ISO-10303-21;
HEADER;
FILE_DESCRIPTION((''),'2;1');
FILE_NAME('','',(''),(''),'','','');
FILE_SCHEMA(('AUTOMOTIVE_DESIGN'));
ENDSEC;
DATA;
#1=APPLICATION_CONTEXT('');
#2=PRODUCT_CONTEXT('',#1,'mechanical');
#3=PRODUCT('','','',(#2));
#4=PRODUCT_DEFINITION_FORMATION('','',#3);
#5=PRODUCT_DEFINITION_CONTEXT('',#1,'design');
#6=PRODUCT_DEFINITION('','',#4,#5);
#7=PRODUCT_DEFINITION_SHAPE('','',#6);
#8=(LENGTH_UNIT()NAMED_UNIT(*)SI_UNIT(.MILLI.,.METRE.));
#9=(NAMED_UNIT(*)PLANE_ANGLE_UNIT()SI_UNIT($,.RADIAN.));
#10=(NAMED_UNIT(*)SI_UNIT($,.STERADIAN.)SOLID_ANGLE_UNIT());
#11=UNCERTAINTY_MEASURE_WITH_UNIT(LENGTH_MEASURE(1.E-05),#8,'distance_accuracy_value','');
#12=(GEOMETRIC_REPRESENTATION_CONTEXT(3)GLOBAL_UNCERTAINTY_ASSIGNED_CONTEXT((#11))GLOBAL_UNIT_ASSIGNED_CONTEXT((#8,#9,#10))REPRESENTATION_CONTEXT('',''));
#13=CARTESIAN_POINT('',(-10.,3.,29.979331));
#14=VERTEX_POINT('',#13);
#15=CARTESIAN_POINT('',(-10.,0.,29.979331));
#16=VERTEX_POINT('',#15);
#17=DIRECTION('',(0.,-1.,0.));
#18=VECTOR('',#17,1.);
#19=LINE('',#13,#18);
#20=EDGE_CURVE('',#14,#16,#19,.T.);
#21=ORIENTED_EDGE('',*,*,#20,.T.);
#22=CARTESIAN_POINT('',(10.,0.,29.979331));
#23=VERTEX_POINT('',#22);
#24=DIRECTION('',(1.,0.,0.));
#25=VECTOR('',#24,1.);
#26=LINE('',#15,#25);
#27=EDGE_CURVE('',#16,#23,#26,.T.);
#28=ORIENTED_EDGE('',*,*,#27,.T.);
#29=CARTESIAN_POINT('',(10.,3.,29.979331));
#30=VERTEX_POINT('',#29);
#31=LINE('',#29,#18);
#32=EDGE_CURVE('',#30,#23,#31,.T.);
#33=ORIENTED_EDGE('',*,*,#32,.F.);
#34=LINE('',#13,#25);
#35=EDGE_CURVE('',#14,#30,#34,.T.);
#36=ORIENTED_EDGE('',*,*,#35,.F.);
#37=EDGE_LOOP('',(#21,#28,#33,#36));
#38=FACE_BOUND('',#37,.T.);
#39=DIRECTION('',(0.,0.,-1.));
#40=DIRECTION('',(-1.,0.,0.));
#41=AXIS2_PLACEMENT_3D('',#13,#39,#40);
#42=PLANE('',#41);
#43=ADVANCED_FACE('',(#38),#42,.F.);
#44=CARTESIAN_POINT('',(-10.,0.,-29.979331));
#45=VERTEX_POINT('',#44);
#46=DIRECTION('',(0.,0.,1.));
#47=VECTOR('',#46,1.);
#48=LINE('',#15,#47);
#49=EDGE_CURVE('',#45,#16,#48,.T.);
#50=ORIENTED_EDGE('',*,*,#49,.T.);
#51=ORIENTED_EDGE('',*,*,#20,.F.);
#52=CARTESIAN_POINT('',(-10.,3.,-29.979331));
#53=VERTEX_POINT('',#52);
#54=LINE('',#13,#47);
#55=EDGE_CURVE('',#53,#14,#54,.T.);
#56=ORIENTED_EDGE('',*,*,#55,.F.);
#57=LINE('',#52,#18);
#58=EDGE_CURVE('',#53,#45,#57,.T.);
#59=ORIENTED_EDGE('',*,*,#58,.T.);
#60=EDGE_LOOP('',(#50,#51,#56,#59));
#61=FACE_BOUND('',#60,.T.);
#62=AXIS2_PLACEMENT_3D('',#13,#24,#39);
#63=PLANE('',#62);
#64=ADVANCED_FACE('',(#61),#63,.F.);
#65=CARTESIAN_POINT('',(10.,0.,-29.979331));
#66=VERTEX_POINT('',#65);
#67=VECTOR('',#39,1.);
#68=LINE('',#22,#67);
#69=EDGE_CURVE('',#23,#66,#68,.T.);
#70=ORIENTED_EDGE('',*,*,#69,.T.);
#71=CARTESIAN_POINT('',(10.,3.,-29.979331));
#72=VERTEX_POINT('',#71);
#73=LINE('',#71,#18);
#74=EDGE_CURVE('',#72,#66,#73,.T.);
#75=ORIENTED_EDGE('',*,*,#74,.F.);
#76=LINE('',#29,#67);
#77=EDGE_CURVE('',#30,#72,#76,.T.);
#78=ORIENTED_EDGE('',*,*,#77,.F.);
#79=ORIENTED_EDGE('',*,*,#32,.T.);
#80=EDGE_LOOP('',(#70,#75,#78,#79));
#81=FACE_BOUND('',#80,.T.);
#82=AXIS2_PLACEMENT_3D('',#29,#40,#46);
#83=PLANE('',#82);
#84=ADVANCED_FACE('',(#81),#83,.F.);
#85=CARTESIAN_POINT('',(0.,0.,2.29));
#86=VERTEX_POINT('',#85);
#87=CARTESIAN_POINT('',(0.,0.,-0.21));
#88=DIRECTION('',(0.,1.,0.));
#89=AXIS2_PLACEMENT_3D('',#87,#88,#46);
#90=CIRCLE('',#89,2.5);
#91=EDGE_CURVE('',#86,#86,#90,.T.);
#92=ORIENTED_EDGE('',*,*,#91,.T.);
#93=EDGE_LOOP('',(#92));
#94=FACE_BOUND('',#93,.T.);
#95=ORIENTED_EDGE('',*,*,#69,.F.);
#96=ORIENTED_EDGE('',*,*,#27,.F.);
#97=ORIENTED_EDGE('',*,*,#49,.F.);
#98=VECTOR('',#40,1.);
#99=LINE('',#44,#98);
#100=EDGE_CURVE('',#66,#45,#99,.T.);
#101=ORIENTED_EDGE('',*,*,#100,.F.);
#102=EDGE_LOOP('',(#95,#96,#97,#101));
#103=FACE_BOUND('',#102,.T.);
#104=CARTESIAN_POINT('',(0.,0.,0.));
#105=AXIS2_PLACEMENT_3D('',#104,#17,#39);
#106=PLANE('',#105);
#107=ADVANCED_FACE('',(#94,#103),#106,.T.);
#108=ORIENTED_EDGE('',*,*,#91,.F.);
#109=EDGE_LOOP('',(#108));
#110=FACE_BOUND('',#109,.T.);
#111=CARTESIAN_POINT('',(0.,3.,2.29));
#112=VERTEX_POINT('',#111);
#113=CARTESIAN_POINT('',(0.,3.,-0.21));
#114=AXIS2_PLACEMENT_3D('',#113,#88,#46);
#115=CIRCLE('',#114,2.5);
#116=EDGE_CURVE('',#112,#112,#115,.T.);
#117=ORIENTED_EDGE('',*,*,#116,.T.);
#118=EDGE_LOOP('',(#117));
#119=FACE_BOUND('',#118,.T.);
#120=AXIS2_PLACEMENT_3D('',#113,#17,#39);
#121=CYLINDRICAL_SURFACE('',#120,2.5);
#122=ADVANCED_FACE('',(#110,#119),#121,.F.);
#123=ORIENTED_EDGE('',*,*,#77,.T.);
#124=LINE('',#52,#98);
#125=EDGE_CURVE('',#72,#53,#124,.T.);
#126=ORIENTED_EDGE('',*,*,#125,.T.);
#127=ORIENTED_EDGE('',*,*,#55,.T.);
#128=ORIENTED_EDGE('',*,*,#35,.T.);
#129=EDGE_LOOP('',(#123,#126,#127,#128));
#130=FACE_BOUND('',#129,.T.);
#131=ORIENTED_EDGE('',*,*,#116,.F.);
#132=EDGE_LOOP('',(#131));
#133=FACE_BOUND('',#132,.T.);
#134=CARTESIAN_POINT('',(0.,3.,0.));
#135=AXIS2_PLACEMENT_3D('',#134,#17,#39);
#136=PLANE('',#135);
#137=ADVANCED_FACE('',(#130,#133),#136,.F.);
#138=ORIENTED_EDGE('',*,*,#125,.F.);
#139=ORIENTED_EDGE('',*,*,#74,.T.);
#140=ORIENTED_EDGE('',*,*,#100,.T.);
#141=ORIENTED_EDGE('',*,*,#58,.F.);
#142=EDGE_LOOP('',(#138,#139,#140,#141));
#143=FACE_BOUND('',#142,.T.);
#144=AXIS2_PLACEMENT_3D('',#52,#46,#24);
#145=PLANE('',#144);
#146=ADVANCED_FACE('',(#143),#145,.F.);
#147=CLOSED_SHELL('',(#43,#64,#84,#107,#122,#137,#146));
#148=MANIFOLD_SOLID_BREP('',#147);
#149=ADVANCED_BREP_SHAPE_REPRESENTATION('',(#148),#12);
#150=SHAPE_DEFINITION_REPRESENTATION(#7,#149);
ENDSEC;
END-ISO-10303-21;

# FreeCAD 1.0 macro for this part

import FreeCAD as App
import Part
import Sketcher

doc = App.newDocument("Part")
body = doc.addObject("PartDesign::Body", "Body")

sketch1 = body.newObject("Sketcher::SketchObject", "Sketch")
sketch1.AttachmentSupport = (doc.getObject("XZ_Plane"), [""])
sketch1.MapMode = "FlatFace"
sketch1.addGeometry(Part.LineSegment(App.Vector(-10, -30, 0), App.Vector(-10, 30, 0)), False)
sketch1.addGeometry(Part.LineSegment(App.Vector(-10, 30, 0), App.Vector(10, 30, 0)), False)
sketch1.addGeometry(Part.LineSegment(App.Vector(10, 30, 0), App.Vector(10, -30, 0)), False)
sketch1.addGeometry(Part.LineSegment(App.Vector(10, -30, 0), App.Vector(-10, -30, 0)), False)
sketch1.addGeometry(Part.Circle(App.Vector(0, -0.2, 0), App.Vector(0, 0, 1), 2.5), False)
sketch1.addConstraint(Sketcher.Constraint("Coincident", 0, 2, 1, 1))
sketch1.addConstraint(Sketcher.Constraint("Coincident", 1, 2, 2, 1))
sketch1.addConstraint(Sketcher.Constraint("Coincident", 2, 2, 3, 1))
sketch1.addConstraint(Sketcher.Constraint("Coincident", 3, 2, 0, 1))
sketch1.addConstraint(Sketcher.Constraint("Vertical", 0))
sketch1.addConstraint(Sketcher.Constraint("Horizontal", 1))
sketch1.addConstraint(Sketcher.Constraint("Vertical", 2))
sketch1.addConstraint(Sketcher.Constraint("Horizontal", 3))
sketch1.addConstraint(Sketcher.Constraint("Symmetric", 0, 2, 2, 2, -1, 1))
sketch1.addConstraint(Sketcher.Constraint("PointOnObject", 4, 3, -2))
sketch1.addConstraint(Sketcher.Constraint("Diameter", 4, 5.0))
sketch1.addConstraint(Sketcher.Constraint("DistanceX", 1, 1, 1, 2, 20.0))
sketch1.addConstraint(Sketcher.Constraint("DistanceY", 4, 3, -1, 1, 0.21))
sketch1.addConstraint(Sketcher.Constraint("DistanceY", 0, 1, 0, 2, 59.958662))
pad1 = body.newObject("PartDesign::Pad", "Pad")
pad1.Profile = sketch1
pad1.Length = 3
pad1.Reversed = True

doc.recompute()
